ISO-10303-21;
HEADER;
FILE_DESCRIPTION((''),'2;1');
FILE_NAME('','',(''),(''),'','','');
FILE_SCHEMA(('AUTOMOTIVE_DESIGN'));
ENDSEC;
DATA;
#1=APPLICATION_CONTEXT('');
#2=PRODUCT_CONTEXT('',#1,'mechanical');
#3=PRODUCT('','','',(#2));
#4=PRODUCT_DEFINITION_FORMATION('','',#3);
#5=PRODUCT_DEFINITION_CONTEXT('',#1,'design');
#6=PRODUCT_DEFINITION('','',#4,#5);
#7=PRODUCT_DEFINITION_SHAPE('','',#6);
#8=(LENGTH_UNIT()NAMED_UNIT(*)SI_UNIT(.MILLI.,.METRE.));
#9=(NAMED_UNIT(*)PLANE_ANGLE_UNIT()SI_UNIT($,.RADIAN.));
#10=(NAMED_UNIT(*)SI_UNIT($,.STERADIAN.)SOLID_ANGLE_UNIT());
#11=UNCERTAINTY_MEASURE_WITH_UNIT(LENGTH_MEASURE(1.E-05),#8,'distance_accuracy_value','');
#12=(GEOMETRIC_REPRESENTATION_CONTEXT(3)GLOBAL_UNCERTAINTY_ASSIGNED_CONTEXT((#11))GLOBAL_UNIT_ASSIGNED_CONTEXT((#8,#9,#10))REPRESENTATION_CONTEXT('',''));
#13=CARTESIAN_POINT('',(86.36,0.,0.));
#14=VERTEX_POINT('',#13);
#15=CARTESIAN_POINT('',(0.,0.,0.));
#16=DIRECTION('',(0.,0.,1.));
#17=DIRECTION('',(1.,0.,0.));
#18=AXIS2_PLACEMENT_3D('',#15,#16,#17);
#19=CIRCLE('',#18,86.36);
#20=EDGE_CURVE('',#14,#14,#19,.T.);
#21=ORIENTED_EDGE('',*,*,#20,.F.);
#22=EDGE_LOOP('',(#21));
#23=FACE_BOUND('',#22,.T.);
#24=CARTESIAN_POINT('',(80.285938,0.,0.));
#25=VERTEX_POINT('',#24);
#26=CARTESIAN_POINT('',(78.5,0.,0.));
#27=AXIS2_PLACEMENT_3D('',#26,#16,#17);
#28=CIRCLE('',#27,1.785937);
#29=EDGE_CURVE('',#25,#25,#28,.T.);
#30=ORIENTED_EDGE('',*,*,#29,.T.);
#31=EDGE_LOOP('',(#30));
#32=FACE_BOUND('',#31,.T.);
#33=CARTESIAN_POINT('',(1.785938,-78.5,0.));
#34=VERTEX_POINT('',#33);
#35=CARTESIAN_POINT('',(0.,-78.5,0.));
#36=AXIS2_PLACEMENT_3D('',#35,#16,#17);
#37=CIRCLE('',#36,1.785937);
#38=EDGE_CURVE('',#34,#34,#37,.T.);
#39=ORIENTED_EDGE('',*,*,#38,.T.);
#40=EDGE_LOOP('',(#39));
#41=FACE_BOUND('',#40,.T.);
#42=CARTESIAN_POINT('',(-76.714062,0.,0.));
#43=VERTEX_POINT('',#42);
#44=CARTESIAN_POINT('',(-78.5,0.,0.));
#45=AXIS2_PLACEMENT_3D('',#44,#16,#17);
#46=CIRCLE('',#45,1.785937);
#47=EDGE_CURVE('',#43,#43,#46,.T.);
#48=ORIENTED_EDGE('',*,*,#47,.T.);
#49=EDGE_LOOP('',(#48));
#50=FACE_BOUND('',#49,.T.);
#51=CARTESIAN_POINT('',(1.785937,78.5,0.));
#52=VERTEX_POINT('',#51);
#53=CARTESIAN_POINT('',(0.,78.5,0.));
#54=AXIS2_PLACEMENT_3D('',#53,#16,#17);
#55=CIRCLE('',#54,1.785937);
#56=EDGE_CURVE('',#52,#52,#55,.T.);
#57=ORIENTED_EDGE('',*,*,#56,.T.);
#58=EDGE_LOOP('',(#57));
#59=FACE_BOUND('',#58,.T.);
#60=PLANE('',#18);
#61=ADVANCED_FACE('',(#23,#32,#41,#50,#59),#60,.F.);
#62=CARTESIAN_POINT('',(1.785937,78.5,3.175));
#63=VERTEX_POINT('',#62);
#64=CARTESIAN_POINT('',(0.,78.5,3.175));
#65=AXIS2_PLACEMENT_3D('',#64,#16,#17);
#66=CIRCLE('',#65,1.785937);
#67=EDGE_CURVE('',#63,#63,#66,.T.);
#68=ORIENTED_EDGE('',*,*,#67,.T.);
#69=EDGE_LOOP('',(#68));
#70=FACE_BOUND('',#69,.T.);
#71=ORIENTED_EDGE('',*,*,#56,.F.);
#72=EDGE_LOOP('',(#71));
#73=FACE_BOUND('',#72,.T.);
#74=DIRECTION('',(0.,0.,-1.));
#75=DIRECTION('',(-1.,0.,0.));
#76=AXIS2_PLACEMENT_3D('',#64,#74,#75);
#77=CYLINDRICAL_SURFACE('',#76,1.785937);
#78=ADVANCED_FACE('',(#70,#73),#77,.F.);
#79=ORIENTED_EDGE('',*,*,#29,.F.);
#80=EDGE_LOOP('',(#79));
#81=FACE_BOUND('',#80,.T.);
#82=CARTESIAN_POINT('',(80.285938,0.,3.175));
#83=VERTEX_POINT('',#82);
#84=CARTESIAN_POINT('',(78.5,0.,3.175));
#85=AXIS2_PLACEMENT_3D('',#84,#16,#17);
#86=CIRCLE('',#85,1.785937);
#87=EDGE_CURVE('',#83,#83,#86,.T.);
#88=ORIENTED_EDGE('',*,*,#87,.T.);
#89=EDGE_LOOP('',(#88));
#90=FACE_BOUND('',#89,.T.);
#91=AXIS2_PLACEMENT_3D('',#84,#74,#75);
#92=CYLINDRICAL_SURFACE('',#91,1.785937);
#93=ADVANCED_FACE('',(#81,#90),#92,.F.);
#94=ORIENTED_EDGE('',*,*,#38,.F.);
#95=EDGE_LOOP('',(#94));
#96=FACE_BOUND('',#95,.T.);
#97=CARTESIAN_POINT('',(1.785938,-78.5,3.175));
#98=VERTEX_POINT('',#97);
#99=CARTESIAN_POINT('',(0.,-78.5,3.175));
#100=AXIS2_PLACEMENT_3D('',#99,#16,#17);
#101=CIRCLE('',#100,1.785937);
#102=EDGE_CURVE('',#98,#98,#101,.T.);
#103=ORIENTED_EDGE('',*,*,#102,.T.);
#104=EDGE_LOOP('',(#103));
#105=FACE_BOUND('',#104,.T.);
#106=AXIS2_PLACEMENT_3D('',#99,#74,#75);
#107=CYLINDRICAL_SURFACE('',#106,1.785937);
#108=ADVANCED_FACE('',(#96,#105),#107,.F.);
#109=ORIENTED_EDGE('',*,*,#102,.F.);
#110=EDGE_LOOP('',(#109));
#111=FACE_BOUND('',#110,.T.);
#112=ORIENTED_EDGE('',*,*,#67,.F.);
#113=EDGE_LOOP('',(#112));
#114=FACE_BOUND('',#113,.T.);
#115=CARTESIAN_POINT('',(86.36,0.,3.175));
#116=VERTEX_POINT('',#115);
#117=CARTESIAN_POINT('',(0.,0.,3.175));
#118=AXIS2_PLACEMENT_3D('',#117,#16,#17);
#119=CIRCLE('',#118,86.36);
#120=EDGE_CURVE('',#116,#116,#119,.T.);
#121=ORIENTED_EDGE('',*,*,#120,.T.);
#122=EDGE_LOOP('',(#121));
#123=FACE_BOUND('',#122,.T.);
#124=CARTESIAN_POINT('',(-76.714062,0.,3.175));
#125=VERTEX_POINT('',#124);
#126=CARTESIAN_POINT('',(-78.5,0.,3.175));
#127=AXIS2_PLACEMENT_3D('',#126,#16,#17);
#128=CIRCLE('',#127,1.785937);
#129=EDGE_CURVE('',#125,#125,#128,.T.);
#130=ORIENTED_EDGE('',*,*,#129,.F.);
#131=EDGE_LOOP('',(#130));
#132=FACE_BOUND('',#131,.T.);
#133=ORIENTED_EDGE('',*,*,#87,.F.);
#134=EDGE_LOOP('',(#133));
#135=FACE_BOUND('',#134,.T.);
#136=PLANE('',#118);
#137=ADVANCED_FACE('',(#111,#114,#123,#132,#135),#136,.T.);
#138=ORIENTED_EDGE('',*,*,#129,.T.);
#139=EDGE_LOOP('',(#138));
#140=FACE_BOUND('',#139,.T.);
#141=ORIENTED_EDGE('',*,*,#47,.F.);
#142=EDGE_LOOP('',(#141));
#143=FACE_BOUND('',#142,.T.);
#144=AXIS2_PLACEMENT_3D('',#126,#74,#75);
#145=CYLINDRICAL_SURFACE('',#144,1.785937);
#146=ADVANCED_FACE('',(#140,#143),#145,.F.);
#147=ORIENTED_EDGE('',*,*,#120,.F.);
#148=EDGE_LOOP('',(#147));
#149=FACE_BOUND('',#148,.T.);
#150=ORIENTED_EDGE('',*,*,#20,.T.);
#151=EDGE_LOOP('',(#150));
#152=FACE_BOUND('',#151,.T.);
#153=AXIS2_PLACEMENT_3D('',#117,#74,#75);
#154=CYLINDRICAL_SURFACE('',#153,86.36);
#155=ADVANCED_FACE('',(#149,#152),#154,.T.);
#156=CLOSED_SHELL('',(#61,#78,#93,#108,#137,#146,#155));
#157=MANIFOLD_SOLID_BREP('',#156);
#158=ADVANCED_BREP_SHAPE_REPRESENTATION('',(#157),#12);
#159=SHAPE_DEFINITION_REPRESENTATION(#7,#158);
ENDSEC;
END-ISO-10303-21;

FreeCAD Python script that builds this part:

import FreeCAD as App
import Part
import Sketcher

V = App.Vector
Q = App.Units.Quantity

doc = App.newDocument("Part")
body = doc.addObject("PartDesign::Body", "Body")

sketch1 = doc.addObject("Sketcher::SketchObject", "Sketch")
body.addObject(sketch1)
sketch1.AttachmentSupport = (doc.XY_Plane, [""])
sketch1.MapMode = "FlatFace"
sketch1.addGeometry([
    Part.Circle(V(0, 0, 0), V(0, 0, 1), 86.4),
    Part.Circle(V(0, -78.5, 0), V(0, 0, 1), 1.8),
    Part.Circle(V(-78.5, 0, 0), V(0, 0, 1), 1.8),
    Part.Circle(V(78.5, 0, 0), V(0, 0, 1), 1.8),
    Part.Circle(V(0, 78.5, 0), V(0, 0, 1), 1.8),
], False)
sketch1.addConstraint([
    Sketcher.Constraint("Coincident", 0, 3, -1, 1),
    Sketcher.Constraint("Equal", 1, 2),
    Sketcher.Constraint("Equal", 2, 3),
    Sketcher.Constraint("Equal", 3, 4),
    Sketcher.Constraint("Symmetric", 2, 3, 3, 3, -1, 1),
    Sketcher.Constraint("Symmetric", 1, 3, 4, 3, -1, 1),
    Sketcher.Constraint("PointOnObject", 1, 3, -2),
    Sketcher.Constraint("PointOnObject", 2, 3, -1),
    Sketcher.Constraint("Diameter", 0, Q("6.8 in")),
    Sketcher.Constraint("Diameter", 1, Q("0.140625 in")),
    Sketcher.Constraint("DistanceY", 1, 3, -1, 1, 78.5),
    Sketcher.Constraint("DistanceX", 2, 3, -1, 1, 78.5),
])
pad1 = doc.addObject("PartDesign::Pad", "Pad")
body.addObject(pad1)
pad1.Profile = sketch1
pad1.Length = Q("0.125 in")

doc.recompute()
